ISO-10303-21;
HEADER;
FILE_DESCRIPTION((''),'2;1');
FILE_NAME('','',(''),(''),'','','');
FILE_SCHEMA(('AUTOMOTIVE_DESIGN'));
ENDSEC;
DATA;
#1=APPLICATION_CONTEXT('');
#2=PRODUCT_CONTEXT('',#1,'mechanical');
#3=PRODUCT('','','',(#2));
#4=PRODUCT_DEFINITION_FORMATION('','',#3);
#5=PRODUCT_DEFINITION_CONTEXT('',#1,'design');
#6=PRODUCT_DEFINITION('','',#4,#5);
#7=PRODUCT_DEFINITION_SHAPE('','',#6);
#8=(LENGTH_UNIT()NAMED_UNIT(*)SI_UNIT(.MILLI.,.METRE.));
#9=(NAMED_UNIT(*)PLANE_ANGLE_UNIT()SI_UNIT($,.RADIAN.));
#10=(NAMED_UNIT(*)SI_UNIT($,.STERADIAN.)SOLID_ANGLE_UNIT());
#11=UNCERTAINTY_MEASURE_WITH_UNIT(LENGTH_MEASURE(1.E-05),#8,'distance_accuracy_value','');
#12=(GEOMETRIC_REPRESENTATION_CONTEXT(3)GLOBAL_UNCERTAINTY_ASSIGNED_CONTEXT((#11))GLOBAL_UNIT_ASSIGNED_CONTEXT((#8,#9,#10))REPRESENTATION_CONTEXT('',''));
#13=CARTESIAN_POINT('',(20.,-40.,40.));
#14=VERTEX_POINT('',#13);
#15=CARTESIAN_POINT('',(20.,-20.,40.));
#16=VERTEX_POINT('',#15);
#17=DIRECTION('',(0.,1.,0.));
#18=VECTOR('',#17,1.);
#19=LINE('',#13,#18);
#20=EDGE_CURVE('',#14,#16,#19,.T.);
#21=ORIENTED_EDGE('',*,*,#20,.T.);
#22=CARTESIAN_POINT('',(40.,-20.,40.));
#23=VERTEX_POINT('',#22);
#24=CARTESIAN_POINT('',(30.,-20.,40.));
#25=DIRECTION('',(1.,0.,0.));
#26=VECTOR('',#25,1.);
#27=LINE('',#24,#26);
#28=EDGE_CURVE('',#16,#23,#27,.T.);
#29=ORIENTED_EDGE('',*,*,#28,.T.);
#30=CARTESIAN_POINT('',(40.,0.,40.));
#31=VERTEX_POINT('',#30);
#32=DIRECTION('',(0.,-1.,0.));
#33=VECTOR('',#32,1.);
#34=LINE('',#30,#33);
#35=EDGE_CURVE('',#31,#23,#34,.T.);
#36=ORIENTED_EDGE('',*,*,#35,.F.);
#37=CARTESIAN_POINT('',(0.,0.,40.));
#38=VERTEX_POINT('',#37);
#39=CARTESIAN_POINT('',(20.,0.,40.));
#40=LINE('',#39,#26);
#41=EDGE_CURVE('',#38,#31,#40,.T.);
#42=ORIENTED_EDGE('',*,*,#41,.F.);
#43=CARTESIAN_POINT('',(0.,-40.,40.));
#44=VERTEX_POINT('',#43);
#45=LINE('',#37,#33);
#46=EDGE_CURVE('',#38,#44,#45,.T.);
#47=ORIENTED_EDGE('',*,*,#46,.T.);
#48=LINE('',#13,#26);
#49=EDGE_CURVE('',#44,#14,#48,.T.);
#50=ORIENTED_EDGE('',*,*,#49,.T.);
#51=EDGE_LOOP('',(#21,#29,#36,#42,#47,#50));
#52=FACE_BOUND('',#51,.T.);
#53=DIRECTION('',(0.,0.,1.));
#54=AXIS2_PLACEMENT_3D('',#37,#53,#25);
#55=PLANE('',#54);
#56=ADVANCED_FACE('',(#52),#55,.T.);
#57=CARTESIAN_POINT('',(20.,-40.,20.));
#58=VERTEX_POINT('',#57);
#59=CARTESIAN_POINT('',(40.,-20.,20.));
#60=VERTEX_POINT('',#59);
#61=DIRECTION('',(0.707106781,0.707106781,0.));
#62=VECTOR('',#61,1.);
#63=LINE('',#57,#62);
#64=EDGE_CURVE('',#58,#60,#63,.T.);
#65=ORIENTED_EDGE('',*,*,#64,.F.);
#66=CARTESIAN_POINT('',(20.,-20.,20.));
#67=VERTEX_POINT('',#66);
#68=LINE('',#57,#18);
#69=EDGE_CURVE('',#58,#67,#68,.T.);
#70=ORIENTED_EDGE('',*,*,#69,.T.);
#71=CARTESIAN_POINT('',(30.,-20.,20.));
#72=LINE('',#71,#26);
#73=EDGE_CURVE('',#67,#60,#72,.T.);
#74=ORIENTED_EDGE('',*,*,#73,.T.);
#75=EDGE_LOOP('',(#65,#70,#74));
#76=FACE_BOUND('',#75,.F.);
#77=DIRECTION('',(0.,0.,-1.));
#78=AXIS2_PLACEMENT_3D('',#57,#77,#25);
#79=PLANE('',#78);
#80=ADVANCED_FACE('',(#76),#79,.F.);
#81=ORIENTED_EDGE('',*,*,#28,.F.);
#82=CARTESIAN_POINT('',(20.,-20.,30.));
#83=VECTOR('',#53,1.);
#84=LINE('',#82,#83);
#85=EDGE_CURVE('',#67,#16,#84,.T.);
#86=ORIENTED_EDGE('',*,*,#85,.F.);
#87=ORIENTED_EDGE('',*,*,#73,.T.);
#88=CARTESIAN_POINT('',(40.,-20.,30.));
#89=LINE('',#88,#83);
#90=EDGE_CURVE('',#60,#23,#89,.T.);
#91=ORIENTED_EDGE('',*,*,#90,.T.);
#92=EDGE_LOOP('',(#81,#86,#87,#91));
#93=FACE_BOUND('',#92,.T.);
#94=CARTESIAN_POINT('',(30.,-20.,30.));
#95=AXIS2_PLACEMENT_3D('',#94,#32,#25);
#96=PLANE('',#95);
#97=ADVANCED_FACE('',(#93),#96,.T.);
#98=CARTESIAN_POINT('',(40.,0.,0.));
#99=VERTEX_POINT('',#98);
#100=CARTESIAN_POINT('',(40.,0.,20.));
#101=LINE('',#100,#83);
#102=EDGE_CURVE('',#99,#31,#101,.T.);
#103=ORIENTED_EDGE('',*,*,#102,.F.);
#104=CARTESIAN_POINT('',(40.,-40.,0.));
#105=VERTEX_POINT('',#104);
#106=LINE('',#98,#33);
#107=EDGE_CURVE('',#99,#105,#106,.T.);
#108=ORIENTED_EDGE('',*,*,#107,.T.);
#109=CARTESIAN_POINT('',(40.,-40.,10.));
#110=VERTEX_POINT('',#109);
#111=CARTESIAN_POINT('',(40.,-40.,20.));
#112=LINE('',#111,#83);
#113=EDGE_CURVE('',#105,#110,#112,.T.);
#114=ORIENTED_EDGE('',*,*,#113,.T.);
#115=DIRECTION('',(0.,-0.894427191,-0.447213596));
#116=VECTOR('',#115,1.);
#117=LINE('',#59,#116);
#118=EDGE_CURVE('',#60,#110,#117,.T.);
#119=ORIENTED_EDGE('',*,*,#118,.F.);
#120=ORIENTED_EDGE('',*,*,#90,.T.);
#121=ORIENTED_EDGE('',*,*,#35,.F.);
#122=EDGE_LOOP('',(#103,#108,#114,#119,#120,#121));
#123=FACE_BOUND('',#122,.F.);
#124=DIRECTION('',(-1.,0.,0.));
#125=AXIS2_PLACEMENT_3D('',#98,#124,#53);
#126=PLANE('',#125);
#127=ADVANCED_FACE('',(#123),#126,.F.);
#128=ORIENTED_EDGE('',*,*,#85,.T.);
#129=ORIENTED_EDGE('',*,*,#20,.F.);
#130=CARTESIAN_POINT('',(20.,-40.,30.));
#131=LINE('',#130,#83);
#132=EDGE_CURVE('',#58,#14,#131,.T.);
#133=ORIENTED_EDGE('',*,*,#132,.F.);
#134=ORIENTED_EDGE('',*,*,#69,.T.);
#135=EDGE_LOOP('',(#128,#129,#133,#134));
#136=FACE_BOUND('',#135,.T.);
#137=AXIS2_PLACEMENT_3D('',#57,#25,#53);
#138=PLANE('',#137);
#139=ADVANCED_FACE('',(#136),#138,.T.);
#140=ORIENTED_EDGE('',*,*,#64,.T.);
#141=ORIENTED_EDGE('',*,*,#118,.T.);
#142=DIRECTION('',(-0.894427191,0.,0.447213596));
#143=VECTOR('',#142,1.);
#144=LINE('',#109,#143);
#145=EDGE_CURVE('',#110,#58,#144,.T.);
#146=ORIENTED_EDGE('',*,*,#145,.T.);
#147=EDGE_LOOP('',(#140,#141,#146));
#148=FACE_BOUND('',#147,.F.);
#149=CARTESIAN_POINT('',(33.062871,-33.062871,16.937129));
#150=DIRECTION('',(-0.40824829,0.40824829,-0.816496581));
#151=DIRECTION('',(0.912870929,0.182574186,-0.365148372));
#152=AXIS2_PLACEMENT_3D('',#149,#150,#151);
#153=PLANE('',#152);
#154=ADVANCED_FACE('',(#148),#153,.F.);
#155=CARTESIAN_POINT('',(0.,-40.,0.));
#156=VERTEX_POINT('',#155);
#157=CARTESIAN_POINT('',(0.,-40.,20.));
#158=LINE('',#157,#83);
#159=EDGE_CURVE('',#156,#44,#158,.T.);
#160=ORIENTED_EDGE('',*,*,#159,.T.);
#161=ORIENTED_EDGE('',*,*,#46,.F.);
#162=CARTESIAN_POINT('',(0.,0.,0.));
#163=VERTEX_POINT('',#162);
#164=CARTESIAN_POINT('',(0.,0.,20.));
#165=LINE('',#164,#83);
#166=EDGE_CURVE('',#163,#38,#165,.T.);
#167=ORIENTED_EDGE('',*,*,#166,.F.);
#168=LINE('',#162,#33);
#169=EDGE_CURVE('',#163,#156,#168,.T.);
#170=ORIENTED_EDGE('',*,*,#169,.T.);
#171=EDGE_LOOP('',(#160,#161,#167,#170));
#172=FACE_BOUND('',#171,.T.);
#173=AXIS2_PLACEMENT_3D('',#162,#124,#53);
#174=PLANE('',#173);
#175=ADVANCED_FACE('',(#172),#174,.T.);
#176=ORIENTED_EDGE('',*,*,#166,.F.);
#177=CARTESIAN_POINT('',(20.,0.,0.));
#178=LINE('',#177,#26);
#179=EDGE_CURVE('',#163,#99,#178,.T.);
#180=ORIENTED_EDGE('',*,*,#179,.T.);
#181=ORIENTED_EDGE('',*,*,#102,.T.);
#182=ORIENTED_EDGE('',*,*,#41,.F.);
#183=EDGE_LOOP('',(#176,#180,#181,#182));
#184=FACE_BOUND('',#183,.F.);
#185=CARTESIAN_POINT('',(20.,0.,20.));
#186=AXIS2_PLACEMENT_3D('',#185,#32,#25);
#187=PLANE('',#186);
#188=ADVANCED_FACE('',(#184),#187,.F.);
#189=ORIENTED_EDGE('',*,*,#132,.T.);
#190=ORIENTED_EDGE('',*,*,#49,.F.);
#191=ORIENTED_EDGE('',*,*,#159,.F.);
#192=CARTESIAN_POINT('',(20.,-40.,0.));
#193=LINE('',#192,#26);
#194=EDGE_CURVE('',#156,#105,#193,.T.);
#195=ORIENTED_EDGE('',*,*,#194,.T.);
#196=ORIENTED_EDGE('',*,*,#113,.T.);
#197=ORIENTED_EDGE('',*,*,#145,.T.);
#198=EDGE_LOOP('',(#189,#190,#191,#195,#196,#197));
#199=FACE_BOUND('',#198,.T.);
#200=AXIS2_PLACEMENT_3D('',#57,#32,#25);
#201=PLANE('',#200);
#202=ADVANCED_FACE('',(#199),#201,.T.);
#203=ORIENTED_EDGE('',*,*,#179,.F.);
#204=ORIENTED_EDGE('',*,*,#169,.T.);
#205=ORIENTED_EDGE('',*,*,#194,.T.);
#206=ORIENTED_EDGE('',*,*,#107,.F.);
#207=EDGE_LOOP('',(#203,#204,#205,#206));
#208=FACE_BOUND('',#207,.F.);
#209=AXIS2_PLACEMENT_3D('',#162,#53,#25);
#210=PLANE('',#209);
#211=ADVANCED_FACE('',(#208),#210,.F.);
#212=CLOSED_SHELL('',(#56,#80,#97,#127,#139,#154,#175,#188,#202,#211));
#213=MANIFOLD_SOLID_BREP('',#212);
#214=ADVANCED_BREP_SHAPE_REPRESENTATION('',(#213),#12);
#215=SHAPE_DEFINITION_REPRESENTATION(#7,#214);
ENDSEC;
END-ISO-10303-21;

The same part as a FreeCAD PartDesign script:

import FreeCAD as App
import Part
import Sketcher

V = App.Vector
Q = App.Units.Quantity

doc = App.newDocument("Part")
body = doc.addObject("PartDesign::Body", "Body")

sketch1 = body.newObject("Sketcher::SketchObject", "Sketch")
sketch1.AttachmentSupport = (doc.getObject("XZ_Plane"), [""])
sketch1.MapMode = "FlatFace"
sketch1.addGeometry(Part.LineSegment(V(0, 40, 0), V(0, 0, 0)), False)
sketch1.addGeometry(Part.LineSegment(V(0, 0, 0), V(40, 0, 0)), False)
sketch1.addGeometry(Part.LineSegment(V(40, 0, 0), V(40, 40, 0)), False)
sketch1.addGeometry(Part.LineSegment(V(40, 40, 0), V(0, 40, 0)), False)
sketch1.addConstraint(Sketcher.Constraint("Coincident", 0, 2, 1, 1))
sketch1.addConstraint(Sketcher.Constraint("Coincident", 1, 2, 2, 1))
sketch1.addConstraint(Sketcher.Constraint("Coincident", 2, 2, 3, 1))
sketch1.addConstraint(Sketcher.Constraint("Coincident", 3, 2, 0, 1))
sketch1.addConstraint(Sketcher.Constraint("Vertical", 0))
sketch1.addConstraint(Sketcher.Constraint("Horizontal", 1))
sketch1.addConstraint(Sketcher.Constraint("Vertical", 2))
sketch1.addConstraint(Sketcher.Constraint("Horizontal", 3))
sketch1.addConstraint(Sketcher.Constraint("Coincident", 0, 2, -1, 1))
sketch1.addConstraint(Sketcher.Constraint("Equal", 3, 0))
sketch1.addConstraint(Sketcher.Constraint("DistanceX", 1, 1, 1, 2, Q("40 mm")))
pad1 = body.newObject("PartDesign::Pad", "Pad")
pad1.Profile = sketch1
pad1.Length = 40

sketch2 = body.newObject("Sketcher::SketchObject", "Sketch001")
sketch2.AttachmentSupport = (doc.getObject("XZ_Plane"), [""])
sketch2.MapMode = "FlatFace"
sketch2.AttachmentOffset = App.Placement(V(0, 0, 40), App.Rotation())
sketch2.addGeometry(Part.LineSegment(V(20, 40, 0), V(20, 20, 0)), False)
sketch2.addGeometry(Part.LineSegment(V(20, 20, 0), V(40, 20, 0)), False)
sketch2.addGeometry(Part.LineSegment(V(40, 20, 0), V(40, 40, 0)), False)
sketch2.addGeometry(Part.LineSegment(V(40, 40, 0), V(20, 40, 0)), False)
sketch2.addConstraint(Sketcher.Constraint("Coincident", 0, 2, 1, 1))
sketch2.addConstraint(Sketcher.Constraint("Coincident", 1, 2, 2, 1))
sketch2.addConstraint(Sketcher.Constraint("Coincident", 2, 2, 3, 1))
sketch2.addConstraint(Sketcher.Constraint("Coincident", 3, 2, 0, 1))
sketch2.addConstraint(Sketcher.Constraint("Vertical", 0))
sketch2.addConstraint(Sketcher.Constraint("Horizontal", 1))
sketch2.addConstraint(Sketcher.Constraint("Vertical", 2))
sketch2.addConstraint(Sketcher.Constraint("Horizontal", 3))
sketch2.addConstraint(Sketcher.Constraint("Equal", 3, 0))
sketch2.addConstraint(Sketcher.Constraint("DistanceX", 1, 1, 1, 2, Q("20 mm")))
sketch2.addConstraint(Sketcher.Constraint("DistanceX", -1, 1, 0, 2, Q("20 mm")))
sketch2.addConstraint(Sketcher.Constraint("DistanceY", -1, 1, 0, 2, Q("20 mm")))
pocket1 = body.newObject("PartDesign::Pocket", "Pocket")
pocket1.Profile = sketch2
pocket1.Length = 20

sketch3 = body.newObject("Sketcher::SketchObject", "Sketch002")
sketch3.Placement = App.Placement(V(16.666667, -16.666667, 33.333333), App.Rotation(V(0.912870929, 0.182574186, -0.365148372), V(0, -0.894427191, -0.447213595), V(-0.40824829, 0.40824829, -0.816496581), "ZXY"))
sketch3.addGeometry(Part.LineSegment(V(4, 27, 0), V(26, 9, 0)), False)
sketch3.addGeometry(Part.LineSegment(V(26, 9, 0), V(26, 31, 0)), False)
sketch3.addGeometry(Part.LineSegment(V(26, 31, 0), V(4, 27, 0)), False)
sketch3.addConstraint(Sketcher.Constraint("Coincident", 0, 2, 1, 1))
sketch3.addConstraint(Sketcher.Constraint("Coincident", 1, 2, 2, 1))
sketch3.addConstraint(Sketcher.Constraint("Coincident", 2, 2, 0, 1))
sketch3.addConstraint(Sketcher.Constraint("Vertical", 1))
sketch3.addConstraint(Sketcher.Constraint("DistanceY", 1, 1, 1, 2, Q("22.36068 mm")))
sketch3.addConstraint(Sketcher.Constraint("Distance", 0, Q("28.284271 mm")))
sketch3.addConstraint(Sketcher.Constraint("Distance", 2, Q("22.36068 mm")))
sketch3.addConstraint(Sketcher.Constraint("DistanceY", -1, 1, 0, 2, Q("8.944272 mm")))
sketch3.addConstraint(Sketcher.Constraint("DistanceX", -1, 1, 0, 2, Q("25.560386 mm")))
pocket2 = body.newObject("PartDesign::Pocket", "Pocket001")
pocket2.Profile = sketch3
pocket2.Type = "ThroughAll"

doc.recompute()
